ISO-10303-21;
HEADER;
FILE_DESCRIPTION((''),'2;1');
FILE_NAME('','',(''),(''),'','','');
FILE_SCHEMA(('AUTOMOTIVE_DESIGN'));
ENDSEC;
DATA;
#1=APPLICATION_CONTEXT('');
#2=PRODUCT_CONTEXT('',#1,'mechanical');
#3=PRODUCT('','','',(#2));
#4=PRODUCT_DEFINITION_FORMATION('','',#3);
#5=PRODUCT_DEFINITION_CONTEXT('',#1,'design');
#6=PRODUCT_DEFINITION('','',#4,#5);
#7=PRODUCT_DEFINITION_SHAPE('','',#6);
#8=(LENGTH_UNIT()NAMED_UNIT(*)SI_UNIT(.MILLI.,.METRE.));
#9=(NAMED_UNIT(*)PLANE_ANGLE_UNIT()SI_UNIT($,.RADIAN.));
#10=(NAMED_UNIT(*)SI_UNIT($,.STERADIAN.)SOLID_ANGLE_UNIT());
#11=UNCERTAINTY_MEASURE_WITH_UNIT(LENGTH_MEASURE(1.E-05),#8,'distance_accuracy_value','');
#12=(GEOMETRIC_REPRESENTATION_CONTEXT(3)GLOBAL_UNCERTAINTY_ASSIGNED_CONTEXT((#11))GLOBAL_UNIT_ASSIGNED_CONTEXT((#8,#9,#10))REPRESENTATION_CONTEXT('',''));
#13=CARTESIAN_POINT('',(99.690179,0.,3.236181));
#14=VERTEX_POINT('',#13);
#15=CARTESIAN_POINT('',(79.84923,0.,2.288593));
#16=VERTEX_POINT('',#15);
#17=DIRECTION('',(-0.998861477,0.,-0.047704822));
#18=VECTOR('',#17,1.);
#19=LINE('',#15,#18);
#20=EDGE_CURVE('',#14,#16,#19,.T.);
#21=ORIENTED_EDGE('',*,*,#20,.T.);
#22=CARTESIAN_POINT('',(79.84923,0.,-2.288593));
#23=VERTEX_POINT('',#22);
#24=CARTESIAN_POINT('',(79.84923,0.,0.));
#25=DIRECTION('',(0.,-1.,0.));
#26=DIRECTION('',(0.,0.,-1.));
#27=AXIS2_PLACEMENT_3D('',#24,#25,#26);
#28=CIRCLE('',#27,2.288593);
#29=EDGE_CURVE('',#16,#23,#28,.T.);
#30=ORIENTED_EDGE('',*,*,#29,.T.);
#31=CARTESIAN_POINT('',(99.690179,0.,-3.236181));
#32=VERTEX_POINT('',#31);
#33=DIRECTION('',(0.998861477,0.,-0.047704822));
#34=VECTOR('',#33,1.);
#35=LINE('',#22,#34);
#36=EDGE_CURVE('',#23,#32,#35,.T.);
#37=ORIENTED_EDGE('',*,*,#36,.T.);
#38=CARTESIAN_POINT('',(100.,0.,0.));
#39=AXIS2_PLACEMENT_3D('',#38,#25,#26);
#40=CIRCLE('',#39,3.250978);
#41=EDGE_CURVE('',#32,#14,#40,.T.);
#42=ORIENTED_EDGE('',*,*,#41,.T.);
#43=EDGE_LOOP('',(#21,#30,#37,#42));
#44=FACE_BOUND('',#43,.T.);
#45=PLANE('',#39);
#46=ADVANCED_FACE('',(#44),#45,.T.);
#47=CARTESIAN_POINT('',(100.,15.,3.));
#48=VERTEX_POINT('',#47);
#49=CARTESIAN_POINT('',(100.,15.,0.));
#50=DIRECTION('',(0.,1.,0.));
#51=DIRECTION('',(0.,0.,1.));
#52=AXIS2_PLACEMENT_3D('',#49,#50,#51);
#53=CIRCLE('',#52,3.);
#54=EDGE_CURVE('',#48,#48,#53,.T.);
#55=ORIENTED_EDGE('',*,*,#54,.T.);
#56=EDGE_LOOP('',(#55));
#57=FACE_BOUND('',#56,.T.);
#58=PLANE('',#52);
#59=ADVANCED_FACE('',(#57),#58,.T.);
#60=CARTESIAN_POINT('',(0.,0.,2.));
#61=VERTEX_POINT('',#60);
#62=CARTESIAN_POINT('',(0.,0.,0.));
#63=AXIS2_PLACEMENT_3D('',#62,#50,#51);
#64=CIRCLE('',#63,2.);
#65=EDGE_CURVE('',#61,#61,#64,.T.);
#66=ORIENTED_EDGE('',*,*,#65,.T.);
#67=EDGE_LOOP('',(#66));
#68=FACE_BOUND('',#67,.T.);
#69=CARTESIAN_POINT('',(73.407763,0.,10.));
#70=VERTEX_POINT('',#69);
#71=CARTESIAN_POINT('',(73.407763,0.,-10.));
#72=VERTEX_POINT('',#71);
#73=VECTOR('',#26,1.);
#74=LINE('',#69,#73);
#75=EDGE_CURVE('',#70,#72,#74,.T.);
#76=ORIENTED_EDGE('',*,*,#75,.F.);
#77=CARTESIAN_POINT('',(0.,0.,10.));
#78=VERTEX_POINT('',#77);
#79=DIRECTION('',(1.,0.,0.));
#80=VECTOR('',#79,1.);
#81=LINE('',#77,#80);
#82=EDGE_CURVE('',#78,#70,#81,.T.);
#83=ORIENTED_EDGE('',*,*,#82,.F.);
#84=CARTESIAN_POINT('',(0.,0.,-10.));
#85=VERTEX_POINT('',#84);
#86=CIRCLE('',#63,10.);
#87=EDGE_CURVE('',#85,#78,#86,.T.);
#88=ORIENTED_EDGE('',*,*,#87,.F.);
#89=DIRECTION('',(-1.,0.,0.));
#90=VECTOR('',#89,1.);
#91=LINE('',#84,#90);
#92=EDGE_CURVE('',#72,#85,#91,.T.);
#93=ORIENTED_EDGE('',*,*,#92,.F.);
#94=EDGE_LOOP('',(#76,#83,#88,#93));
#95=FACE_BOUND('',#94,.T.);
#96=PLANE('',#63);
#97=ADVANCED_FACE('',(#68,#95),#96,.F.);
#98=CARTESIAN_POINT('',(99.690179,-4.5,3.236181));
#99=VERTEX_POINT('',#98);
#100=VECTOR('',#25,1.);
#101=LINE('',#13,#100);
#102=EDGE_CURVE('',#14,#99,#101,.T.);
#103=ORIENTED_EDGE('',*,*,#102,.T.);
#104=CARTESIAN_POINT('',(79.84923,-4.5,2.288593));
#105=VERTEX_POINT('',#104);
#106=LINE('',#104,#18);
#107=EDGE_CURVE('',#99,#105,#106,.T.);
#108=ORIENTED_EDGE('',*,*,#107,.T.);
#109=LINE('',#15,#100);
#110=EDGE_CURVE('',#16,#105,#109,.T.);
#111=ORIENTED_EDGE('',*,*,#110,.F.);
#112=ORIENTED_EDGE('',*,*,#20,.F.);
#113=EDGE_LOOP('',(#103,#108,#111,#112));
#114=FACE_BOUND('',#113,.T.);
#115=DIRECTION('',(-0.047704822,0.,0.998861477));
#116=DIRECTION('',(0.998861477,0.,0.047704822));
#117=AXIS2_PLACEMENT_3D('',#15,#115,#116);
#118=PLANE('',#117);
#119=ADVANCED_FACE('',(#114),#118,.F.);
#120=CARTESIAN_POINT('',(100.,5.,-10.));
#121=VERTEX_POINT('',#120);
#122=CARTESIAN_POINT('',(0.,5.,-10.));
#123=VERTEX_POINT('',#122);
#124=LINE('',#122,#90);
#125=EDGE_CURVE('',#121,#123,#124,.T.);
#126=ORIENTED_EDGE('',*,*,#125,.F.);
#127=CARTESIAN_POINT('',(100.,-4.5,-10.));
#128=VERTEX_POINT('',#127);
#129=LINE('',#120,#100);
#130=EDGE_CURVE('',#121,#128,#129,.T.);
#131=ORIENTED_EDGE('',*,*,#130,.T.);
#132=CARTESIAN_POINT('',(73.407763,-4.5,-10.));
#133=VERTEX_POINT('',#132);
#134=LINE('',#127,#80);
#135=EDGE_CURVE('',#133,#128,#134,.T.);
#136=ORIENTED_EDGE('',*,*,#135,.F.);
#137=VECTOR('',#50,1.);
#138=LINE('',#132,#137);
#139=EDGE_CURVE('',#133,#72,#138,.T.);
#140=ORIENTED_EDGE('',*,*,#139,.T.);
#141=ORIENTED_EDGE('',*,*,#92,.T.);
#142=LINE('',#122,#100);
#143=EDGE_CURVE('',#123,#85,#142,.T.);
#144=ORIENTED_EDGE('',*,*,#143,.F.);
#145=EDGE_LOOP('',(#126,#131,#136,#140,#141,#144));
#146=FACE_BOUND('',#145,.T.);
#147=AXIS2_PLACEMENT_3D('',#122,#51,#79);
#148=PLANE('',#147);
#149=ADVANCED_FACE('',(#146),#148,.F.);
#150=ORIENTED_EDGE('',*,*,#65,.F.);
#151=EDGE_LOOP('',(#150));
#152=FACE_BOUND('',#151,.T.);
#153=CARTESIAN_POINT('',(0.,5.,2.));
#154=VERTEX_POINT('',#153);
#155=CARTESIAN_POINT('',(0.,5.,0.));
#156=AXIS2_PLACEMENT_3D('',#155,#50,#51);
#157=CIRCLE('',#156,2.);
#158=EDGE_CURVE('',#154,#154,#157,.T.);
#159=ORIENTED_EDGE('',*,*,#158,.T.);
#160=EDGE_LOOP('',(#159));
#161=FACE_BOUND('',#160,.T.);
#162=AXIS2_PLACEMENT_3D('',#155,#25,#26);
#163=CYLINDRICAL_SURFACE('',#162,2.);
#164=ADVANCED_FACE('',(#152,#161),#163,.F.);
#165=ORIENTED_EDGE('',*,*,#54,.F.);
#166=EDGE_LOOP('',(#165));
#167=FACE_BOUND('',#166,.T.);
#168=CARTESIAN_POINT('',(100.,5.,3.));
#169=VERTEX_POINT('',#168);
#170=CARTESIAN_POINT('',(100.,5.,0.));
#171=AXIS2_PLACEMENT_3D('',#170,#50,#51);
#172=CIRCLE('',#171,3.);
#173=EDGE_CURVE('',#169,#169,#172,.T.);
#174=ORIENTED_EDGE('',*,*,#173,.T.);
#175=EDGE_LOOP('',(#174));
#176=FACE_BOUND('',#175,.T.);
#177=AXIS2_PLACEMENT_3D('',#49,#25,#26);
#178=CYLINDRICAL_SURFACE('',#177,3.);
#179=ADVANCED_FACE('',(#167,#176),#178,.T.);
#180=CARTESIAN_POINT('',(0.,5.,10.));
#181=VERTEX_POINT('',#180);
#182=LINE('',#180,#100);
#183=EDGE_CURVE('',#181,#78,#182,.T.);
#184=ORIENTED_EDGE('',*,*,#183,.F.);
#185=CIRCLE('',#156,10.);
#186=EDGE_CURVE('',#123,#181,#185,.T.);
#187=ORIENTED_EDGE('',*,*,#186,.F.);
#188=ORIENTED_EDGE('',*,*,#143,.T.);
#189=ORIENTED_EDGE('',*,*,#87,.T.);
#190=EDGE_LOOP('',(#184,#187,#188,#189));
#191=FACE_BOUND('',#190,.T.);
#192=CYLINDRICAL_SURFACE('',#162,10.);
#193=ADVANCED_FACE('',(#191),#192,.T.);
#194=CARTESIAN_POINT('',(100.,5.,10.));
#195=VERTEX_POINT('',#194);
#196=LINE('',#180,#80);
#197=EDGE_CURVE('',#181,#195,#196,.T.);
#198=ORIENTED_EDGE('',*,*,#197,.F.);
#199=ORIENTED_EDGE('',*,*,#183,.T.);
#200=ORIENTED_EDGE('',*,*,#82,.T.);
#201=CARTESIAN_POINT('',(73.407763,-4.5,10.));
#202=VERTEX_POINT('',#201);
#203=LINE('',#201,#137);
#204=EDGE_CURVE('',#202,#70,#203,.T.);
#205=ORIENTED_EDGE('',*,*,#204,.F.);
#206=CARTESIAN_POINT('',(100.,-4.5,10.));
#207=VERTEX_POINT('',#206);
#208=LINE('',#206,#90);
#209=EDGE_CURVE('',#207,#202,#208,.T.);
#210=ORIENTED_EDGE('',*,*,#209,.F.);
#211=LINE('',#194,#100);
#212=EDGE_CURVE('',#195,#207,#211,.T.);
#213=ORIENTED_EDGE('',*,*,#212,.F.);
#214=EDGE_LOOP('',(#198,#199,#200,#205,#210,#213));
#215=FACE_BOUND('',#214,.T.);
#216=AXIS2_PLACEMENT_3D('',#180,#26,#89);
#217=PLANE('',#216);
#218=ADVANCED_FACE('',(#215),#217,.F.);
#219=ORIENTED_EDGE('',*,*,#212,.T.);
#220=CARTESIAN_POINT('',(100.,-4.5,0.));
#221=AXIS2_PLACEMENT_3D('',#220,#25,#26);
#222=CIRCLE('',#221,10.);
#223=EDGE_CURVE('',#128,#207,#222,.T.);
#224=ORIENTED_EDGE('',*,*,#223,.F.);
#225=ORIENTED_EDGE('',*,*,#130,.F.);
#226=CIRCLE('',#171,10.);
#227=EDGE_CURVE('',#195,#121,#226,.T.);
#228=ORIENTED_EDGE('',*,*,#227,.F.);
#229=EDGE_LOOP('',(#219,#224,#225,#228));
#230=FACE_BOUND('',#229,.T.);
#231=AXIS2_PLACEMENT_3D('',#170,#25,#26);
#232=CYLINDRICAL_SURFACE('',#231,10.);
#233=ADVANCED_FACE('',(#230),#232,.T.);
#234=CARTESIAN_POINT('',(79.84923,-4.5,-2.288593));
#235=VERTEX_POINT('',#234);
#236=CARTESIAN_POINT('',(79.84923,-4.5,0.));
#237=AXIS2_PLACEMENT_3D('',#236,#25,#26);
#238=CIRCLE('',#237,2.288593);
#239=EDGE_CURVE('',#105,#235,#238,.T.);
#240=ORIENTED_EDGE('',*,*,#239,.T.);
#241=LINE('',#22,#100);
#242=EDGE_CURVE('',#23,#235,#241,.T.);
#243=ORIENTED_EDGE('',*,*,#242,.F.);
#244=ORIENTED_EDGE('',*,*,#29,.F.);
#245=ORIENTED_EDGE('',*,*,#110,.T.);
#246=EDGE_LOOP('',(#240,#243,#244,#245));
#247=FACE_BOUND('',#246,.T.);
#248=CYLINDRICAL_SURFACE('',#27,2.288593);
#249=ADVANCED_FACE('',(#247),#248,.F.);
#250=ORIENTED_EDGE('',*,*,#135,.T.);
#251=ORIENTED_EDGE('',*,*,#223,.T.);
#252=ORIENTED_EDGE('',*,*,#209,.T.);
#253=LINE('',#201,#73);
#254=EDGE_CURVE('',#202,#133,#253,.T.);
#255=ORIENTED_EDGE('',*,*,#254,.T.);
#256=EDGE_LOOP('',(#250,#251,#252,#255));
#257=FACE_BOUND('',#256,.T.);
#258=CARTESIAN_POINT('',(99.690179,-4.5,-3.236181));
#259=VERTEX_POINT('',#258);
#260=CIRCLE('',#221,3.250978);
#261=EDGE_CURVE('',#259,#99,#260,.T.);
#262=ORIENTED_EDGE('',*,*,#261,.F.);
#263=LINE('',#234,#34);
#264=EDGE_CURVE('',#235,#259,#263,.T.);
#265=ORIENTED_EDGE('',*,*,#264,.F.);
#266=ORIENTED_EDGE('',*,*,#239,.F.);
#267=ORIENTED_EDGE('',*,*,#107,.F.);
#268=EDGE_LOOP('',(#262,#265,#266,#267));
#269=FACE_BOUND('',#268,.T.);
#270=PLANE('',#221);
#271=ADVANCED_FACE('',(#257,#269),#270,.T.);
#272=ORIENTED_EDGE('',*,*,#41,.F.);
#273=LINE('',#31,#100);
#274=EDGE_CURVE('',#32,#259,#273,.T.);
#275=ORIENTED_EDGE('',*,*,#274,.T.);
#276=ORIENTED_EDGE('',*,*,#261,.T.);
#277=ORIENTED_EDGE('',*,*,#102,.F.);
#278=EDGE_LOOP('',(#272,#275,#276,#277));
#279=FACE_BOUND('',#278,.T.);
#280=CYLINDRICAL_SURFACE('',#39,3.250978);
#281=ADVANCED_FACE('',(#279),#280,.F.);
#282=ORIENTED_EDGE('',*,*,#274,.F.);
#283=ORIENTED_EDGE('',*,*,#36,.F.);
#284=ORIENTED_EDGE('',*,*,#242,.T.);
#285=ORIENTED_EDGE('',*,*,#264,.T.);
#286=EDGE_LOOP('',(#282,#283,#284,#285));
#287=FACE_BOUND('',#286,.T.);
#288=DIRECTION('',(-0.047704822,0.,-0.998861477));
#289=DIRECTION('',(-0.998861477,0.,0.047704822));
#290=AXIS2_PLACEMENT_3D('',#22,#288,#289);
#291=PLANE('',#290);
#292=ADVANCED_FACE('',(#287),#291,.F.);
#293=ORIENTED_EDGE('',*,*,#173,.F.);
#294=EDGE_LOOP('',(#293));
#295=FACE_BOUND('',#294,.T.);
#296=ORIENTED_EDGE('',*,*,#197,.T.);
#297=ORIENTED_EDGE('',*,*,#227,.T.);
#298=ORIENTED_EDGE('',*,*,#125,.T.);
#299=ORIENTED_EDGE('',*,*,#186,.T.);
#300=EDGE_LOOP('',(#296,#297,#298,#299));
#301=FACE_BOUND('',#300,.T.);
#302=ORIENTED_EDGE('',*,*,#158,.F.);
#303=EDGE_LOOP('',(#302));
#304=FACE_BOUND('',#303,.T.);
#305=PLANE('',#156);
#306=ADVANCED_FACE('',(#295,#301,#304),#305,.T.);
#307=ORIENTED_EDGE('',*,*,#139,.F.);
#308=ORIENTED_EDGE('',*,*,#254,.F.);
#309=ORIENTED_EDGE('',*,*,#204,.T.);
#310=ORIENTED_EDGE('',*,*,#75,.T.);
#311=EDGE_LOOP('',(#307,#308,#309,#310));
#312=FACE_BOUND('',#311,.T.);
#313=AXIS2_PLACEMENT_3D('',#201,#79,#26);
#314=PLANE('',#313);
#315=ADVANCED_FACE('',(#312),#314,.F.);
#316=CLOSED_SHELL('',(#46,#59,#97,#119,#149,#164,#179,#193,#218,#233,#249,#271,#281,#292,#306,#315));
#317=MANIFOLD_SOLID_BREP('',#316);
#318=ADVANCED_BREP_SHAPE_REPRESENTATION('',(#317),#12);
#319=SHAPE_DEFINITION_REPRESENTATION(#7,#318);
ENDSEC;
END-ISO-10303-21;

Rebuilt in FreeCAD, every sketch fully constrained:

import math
import FreeCAD as App
import Part
import Sketcher

V = App.Vector
Q = App.Units.Quantity

doc = App.newDocument("Part")
body = doc.addObject("PartDesign::Body", "Body")

# Sketch on XZ plane
sketch1 = body.newObject("Sketcher::SketchObject", "Sketch")
sketch1.AttachmentSupport = (doc.getObject("XZ_Plane"), [""])
sketch1.MapMode = "FlatFace"
sketch1.addGeometry([
    Part.LineSegment(V(100, -10, 0), V(0, -10, 0)),  # 0
    Part.ArcOfCircle(Part.Circle(V(0, 0, 0), V(0, 0, 1), 10), math.radians(90), math.radians(270)),  # 1
    Part.LineSegment(V(0, 10, 0), V(100, 10, 0)),  # 2
    Part.ArcOfCircle(Part.Circle(V(100, 0, 0), V(0, 0, 1), 10), math.radians(-90), math.radians(90)),  # 3
    Part.Circle(V(0, 0, 0), V(0, 0, 1), 2),  # 4
], False)
sketch1.addConstraint([
    Sketcher.Constraint("Tangent", 0, 2, 1, 2),
    Sketcher.Constraint("Tangent", 1, 1, 2, 1),
    Sketcher.Constraint("Tangent", 2, 2, 3, 2),
    Sketcher.Constraint("Tangent", 3, 1, 0, 1),
    Sketcher.Constraint("Horizontal", 0),
    Sketcher.Constraint("Horizontal", 2),
    Sketcher.Constraint("Coincident", 1, 3, -1, 1),
    Sketcher.Constraint("Coincident", 4, 3, -1, 1),
    Sketcher.Constraint("Diameter", 4, Q("4 mm")),
    Sketcher.Constraint("Radius", 1, Q("10 mm")),
    Sketcher.Constraint("DistanceX", 0, 2, 0, 1, Q("100 mm")),
])
pad1 = body.newObject("PartDesign::Pad", "Pad")
pad1.Profile = sketch1
pad1.Length = 5
pad1.Reversed = True

# Sketch on XZ plane
sketch2 = body.newObject("Sketcher::SketchObject", "Sketch001")
sketch2.AttachmentSupport = (doc.getObject("XZ_Plane"), [""])
sketch2.MapMode = "FlatFace"
sketch2.AttachmentOffset = App.Placement(V(0, 0, -5), App.Rotation())
sketch2.addGeometry(Part.Circle(V(100, 0, 0), V(0, 0, 1), 3), False)
sketch2.addConstraint([
    Sketcher.Constraint("PointOnObject", 0, 3, -1),
    Sketcher.Constraint("Diameter", 0, Q("6 mm")),
    Sketcher.Constraint("DistanceX", -1, 1, 0, 3, Q("100 mm")),
])
pad2 = body.newObject("PartDesign::Pad", "Pad001")
pad2.Profile = sketch2
pad2.Length = 10
pad2.Reversed = True

# Sketch on XZ plane
sketch3 = body.newObject("Sketcher::SketchObject", "Sketch002")
sketch3.AttachmentSupport = (doc.getObject("XZ_Plane"), [""])
sketch3.MapMode = "FlatFace"
sketch3.AttachmentOffset = App.Placement(V(0, 0, 4.5), App.Rotation())
sketch3.addGeometry([
    Part.LineSegment(V(100, 10, 0), V(73, 10, 0)),
    Part.LineSegment(V(73, 10, 0), V(73, -10, 0)),
    Part.LineSegment(V(73, -10, 0), V(100, -10, 0)),
    Part.ArcOfCircle(Part.Circle(V(100, 0, 0), V(0, 0, 1), 10), math.radians(-90), math.radians(90)),
], False)
sketch3.addConstraint([
    Sketcher.Constraint("Coincident", 0, 2, 1, 1),
    Sketcher.Constraint("Coincident", 1, 2, 2, 1),
    Sketcher.Constraint("Tangent", 2, 2, 3, 1),
    Sketcher.Constraint("Tangent", 3, 2, 0, 1),
    Sketcher.Constraint("Horizontal", 0),
    Sketcher.Constraint("Vertical", 1),
    Sketcher.Constraint("Horizontal", 2),
    Sketcher.Constraint("PointOnObject", 3, 3, -1),
    Sketcher.Constraint("Radius", 3, Q("10 mm")),
    Sketcher.Constraint("DistanceX", -1, 1, 3, 3, Q("100 mm")),
    Sketcher.Constraint("DistanceX", 0, 2, 0, 1, Q("26.592237 mm")),
])
pad3 = body.newObject("PartDesign::Pad", "Pad002")
pad3.Profile = sketch3
pad3.Length = 4.5
pad3.Reversed = True

# Sketch on XZ plane
sketch4 = body.newObject("Sketcher::SketchObject", "Sketch003")
sketch4.AttachmentSupport = (doc.getObject("XZ_Plane"), [""])
sketch4.MapMode = "FlatFace"
sketch4.AttachmentOffset = App.Placement(V(0, 0, 4.5), App.Rotation())
sketch4.addGeometry([
    Part.LineSegment(V(99.7, 3.2, 0), V(79.8, 2.3, 0)),
    Part.ArcOfCircle(Part.Circle(V(79.8, 0, 0), V(0, 0, 1), 2.3), math.radians(90), math.radians(270)),
    Part.LineSegment(V(79.8, -2.3, 0), V(99.7, -3.2, 0)),
    Part.ArcOfCircle(Part.Circle(V(100, 0, 0), V(0, 0, 1), 3.3), math.radians(-95), math.radians(95)),
], False)
sketch4.addConstraint([
    Sketcher.Constraint("Coincident", 0, 2, 1, 1),
    Sketcher.Constraint("Coincident", 1, 2, 2, 1),
    Sketcher.Constraint("Coincident", 2, 2, 3, 1),
    Sketcher.Constraint("Coincident", 3, 2, 0, 1),
    Sketcher.Constraint("Symmetric", 0, 2, 1, 2, -1),
    Sketcher.Constraint("Symmetric", 2, 2, 3, 2, -1),
    Sketcher.Constraint("Vertical", 1, 3, 0, 2),
    Sketcher.Constraint("DistanceX", -1, 1, 3, 3, Q("100 mm")),
    Sketcher.Constraint("Radius", 1, Q("2.288593 mm")),
    Sketcher.Constraint("Radius", 3, Q("3.250978 mm")),
    Sketcher.Constraint("DistanceX", -1, 1, 1, 3, Q("79.84923 mm")),
    Sketcher.Constraint("DistanceX", -1, 1, 2, 2, Q("99.690179 mm")),
])
pocket1 = body.newObject("PartDesign::Pocket", "Pocket")
pocket1.Profile = sketch4
pocket1.Length = 4.5

doc.recompute()
